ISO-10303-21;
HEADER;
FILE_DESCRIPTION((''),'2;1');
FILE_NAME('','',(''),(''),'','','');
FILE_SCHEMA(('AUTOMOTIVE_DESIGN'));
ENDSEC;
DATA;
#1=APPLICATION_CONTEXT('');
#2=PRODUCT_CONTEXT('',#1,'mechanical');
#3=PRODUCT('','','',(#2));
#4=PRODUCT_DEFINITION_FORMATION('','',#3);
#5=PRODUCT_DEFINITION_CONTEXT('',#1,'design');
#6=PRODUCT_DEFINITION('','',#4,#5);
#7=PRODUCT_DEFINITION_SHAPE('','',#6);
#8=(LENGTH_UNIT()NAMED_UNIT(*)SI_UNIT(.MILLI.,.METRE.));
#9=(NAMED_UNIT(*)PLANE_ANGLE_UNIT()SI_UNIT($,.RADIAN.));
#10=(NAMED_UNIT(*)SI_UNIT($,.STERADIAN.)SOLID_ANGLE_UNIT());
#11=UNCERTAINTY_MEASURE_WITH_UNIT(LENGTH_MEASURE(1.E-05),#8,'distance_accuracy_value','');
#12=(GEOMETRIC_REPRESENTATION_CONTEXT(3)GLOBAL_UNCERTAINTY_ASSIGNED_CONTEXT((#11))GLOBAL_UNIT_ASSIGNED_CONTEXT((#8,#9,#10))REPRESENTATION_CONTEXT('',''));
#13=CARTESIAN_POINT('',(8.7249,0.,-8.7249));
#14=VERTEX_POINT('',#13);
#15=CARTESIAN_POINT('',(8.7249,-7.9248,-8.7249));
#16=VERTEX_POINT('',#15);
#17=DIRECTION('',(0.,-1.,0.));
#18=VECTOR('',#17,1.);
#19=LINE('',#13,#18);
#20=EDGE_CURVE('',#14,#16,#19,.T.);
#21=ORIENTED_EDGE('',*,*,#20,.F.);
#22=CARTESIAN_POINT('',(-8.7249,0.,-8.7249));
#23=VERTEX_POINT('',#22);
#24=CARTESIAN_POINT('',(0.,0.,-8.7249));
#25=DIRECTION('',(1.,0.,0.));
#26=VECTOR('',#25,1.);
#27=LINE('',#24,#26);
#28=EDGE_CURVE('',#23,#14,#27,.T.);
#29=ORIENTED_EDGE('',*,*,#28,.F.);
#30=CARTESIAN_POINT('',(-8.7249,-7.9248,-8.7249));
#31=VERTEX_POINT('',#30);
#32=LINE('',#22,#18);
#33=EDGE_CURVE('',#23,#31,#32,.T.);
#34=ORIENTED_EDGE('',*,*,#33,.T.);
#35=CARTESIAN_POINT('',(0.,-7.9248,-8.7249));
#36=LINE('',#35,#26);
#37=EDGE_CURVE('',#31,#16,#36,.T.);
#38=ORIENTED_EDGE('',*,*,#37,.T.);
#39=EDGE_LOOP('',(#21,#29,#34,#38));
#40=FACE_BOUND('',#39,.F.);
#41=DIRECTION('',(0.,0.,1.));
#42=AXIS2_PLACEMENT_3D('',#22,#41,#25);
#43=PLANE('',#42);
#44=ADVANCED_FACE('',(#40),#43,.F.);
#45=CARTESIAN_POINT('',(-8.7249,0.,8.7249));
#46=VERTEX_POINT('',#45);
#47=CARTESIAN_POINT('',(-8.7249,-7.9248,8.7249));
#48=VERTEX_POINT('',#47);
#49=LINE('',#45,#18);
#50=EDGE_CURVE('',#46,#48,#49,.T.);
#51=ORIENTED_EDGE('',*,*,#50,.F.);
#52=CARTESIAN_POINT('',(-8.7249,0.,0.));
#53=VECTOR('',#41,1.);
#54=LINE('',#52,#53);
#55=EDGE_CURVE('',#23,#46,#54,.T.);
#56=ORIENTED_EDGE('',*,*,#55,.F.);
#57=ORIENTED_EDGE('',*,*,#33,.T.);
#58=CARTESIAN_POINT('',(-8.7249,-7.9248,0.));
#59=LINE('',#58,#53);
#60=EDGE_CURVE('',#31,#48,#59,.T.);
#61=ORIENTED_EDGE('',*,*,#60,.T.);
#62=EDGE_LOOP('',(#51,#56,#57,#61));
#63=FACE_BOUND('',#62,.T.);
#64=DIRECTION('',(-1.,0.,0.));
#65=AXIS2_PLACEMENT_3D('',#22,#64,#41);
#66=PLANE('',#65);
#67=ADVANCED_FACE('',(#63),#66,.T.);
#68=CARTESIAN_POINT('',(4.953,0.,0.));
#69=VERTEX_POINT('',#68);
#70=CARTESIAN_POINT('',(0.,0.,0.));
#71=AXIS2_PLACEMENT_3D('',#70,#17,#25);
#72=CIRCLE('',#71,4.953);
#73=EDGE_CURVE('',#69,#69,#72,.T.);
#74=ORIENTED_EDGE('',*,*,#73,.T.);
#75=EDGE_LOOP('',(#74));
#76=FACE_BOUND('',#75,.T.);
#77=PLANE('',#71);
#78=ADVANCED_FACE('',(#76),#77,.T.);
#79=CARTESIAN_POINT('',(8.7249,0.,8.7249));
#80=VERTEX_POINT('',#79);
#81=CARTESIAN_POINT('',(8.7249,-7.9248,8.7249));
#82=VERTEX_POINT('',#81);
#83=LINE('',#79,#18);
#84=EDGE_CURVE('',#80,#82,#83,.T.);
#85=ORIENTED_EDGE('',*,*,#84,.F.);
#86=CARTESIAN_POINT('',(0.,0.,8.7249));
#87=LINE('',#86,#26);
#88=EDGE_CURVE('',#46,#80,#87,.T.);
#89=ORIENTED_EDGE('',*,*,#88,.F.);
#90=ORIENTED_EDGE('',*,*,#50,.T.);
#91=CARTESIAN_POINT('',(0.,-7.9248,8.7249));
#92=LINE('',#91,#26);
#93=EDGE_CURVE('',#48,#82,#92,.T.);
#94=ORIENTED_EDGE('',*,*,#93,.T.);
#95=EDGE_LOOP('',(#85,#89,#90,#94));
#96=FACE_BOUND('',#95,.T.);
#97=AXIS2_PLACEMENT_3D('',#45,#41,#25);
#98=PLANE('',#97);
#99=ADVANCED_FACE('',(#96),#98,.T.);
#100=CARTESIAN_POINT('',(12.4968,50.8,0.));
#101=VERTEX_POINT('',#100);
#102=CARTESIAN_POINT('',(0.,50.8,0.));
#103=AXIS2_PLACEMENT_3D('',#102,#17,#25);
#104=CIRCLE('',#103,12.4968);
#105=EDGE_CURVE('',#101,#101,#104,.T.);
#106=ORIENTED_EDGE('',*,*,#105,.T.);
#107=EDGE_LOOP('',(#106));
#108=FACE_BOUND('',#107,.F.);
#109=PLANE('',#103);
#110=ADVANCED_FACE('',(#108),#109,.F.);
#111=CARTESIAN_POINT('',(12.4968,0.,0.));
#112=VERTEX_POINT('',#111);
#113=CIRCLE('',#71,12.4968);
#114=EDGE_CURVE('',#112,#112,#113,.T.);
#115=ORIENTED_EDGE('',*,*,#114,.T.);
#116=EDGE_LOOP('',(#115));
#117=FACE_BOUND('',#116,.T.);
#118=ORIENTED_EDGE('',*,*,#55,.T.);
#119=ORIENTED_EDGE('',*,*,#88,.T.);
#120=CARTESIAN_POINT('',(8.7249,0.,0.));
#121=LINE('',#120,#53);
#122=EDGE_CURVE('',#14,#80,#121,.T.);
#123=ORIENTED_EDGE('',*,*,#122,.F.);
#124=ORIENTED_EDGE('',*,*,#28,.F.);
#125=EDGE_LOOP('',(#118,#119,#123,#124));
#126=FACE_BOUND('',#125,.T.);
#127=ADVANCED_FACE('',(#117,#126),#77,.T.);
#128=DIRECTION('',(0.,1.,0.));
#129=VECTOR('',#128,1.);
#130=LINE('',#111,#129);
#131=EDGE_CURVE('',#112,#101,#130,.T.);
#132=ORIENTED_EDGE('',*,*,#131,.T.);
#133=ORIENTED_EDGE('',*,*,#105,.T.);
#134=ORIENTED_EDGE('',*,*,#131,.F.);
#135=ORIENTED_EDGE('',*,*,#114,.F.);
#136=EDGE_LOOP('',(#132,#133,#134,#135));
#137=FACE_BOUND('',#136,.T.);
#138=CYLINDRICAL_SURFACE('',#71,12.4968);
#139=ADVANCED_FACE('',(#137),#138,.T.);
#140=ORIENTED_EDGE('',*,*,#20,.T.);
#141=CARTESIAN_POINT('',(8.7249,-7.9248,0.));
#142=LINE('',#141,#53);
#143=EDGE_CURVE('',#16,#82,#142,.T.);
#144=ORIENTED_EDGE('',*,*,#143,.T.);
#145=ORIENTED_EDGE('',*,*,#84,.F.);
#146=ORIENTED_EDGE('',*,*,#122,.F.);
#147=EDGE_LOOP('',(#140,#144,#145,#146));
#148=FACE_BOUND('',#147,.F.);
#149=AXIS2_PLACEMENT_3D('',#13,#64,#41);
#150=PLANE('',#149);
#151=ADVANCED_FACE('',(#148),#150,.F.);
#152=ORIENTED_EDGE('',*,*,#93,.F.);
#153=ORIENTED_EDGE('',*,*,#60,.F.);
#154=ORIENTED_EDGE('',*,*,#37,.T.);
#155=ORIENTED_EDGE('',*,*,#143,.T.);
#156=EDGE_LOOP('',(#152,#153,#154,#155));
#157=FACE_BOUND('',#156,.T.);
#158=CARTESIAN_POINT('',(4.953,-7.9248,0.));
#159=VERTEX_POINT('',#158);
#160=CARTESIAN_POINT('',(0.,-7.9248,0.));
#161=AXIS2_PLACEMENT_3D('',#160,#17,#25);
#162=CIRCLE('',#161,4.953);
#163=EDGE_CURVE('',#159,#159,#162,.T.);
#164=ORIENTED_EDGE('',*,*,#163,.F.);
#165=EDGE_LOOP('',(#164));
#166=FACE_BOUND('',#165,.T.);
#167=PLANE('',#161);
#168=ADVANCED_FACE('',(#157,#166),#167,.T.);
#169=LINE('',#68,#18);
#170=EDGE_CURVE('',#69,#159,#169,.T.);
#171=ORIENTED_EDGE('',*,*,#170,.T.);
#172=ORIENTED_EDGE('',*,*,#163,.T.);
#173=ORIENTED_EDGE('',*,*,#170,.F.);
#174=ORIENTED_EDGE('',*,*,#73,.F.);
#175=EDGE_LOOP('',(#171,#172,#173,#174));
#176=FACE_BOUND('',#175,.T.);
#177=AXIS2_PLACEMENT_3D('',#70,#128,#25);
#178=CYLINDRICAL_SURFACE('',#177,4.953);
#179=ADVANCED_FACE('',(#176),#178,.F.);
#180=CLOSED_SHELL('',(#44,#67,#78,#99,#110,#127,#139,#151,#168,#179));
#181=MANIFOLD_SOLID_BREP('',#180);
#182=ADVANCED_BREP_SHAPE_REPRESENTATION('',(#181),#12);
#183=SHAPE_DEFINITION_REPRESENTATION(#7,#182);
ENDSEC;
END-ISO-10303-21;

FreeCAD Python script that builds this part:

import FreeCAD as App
import Part
import Sketcher

V = App.Vector
Q = App.Units.Quantity


def add_polygon(sketch, points):
    """Adds a closed chain of lines whose ends are joined by coincident constraints."""
    first, n = sketch.GeometryCount, len(points)
    for a, b in zip(points, points[1:] + points[:1]):
        sketch.addGeometry(Part.LineSegment(App.Vector(*a, 0), App.Vector(*b, 0)), False)
    for i in range(n):
        sketch.addConstraint(Sketcher.Constraint("Coincident", first + i, 2, first + (i + 1) % n, 1))

doc = App.newDocument("Part")
body = doc.addObject("PartDesign::Body", "Body")

# Sketch on XZ plane
sketch1 = doc.addObject("Sketcher::SketchObject", "Sketch")
body.addObject(sketch1)
sketch1.AttachmentSupport = (doc.XZ_Plane, [""])
sketch1.MapMode = "FlatFace"
sketch1.addGeometry(Part.Circle(V(0, 0, 0), V(0, 0, 1), 12), False)
sketch1.addConstraint([
    Sketcher.Constraint("Coincident", 0, 3, -1, 1),
    Sketcher.Constraint("Diameter", 0, Q("0.984 in")),
])
pad1 = doc.addObject("PartDesign::Pad", "Pad")
body.addObject(pad1)
pad1.Profile = sketch1
pad1.Length = Q("2 in")
pad1.Reversed = True

# Sketch on XZ plane
sketch2 = doc.addObject("Sketcher::SketchObject", "Sketch001")
body.addObject(sketch2)
sketch2.AttachmentSupport = (doc.XZ_Plane, [""])
sketch2.MapMode = "FlatFace"
add_polygon(sketch2, [(-8.7, 8.7), (-8.7, -8.7), (8.7, -8.7), (8.7, 8.7)])  # lines 0-3
sketch2.addGeometry(Part.Circle(V(0, 0, 0), V(0, 0, 1), 5), False)  # 4
sketch2.addConstraint([
    Sketcher.Constraint("Vertical", 0),
    Sketcher.Constraint("Horizontal", 1),
    Sketcher.Constraint("Vertical", 2),
    Sketcher.Constraint("Horizontal", 3),
    Sketcher.Constraint("Coincident", 4, 3, -1, 1),
    Sketcher.Constraint("Symmetric", 0, 2, 2, 2, -1, 1),
    Sketcher.Constraint("Equal", 3, 0),
    Sketcher.Constraint("Diameter", 4, Q("0.39 in")),
    Sketcher.Constraint("DistanceX", 1, 1, 1, 2, Q("0.687 in")),
])
pad2 = doc.addObject("PartDesign::Pad", "Pad001")
body.addObject(pad2)
pad2.Profile = sketch2
pad2.Length = Q("0.312 in")

doc.recompute()
